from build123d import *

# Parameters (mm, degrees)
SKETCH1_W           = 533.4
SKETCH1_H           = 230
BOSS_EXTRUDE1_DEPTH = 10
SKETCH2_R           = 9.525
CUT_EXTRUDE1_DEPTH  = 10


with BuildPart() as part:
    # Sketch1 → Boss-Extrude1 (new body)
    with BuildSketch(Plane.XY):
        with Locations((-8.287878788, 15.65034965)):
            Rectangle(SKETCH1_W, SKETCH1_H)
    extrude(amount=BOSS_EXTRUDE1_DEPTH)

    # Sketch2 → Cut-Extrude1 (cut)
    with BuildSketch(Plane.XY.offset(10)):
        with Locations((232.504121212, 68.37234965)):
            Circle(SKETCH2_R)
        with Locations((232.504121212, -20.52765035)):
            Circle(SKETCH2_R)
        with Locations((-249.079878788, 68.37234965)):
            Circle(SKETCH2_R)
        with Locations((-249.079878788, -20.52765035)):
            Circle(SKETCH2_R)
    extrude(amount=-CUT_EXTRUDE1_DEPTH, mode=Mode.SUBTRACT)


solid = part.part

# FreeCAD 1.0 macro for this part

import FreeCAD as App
import Part
import Sketcher

V = App.Vector

doc = App.newDocument("Part")
body = doc.addObject("PartDesign::Body", "Body")

sketch1 = body.newObject("Sketcher::SketchObject", "Sketch")
sketch1.AttachmentSupport = (doc.getObject("XY_Plane"), [""])
sketch1.MapMode = "FlatFace"
sketch1.addGeometry([
    Part.LineSegment(V(-274.987879, 130.65035, 0), V(-274.987879, -99.34965, 0)),
    Part.LineSegment(V(-274.987879, -99.34965, 0), V(258.412121, -99.34965, 0)),
    Part.LineSegment(V(258.412121, -99.34965, 0), V(258.412121, 130.65035, 0)),
    Part.LineSegment(V(258.412121, 130.65035, 0), V(-274.987879, 130.65035, 0)),
], False)
sketch1.addConstraint([
    Sketcher.Constraint("Coincident", 0, 2, 1, 1),
    Sketcher.Constraint("Coincident", 1, 2, 2, 1),
    Sketcher.Constraint("Coincident", 2, 2, 3, 1),
    Sketcher.Constraint("Coincident", 3, 2, 0, 1),
    Sketcher.Constraint("Vertical", 0),
    Sketcher.Constraint("Horizontal", 1),
    Sketcher.Constraint("Vertical", 2),
    Sketcher.Constraint("Horizontal", 3),
    Sketcher.Constraint("DistanceY", 0, 2, 0, 1, 230.0),
    Sketcher.Constraint("DistanceX", 1, 1, 1, 2, 533.4),
    Sketcher.Constraint("DistanceX", 0, 2, -1, 1, 274.987879),
    Sketcher.Constraint("DistanceY", 0, 2, -1, 1, 99.34965),
])
pad1 = body.newObject("PartDesign::Pad", "Pad")
pad1.Profile = sketch1
pad1.Length = 10

sketch2 = body.newObject("Sketcher::SketchObject", "Sketch001")
sketch2.AttachmentSupport = (doc.getObject("XY_Plane"), [""])
sketch2.MapMode = "FlatFace"
sketch2.AttachmentOffset = App.Placement(V(0, 0, 10), App.Rotation())
sketch2.addGeometry([
    Part.Circle(V(232.504121, 68.37235, 0), V(0, 0, 1), 9.525),
    Part.Circle(V(232.504121, -20.52765, 0), V(0, 0, 1), 9.525),
    Part.Circle(V(-249.079879, 68.37235, 0), V(0, 0, 1), 9.525),
    Part.Circle(V(-249.079879, -20.52765, 0), V(0, 0, 1), 9.525),
], False)
sketch2.addConstraint([
    Sketcher.Constraint("Equal", 0, 1),
    Sketcher.Constraint("Equal", 1, 2),
    Sketcher.Constraint("Equal", 2, 3),
    Sketcher.Constraint("Horizontal", 0, 3, 2, 3),
    Sketcher.Constraint("Horizontal", 1, 3, 3, 3),
    Sketcher.Constraint("Vertical", 0, 3, 1, 3),
    Sketcher.Constraint("Vertical", 2, 3, 3, 3),
    Sketcher.Constraint("Diameter", 0, 19.05),
    Sketcher.Constraint("DistanceY", 1, 3, 0, 3, 88.9),
    Sketcher.Constraint("DistanceX", 2, 3, 0, 3, 481.584),
    Sketcher.Constraint("DistanceX", -1, 1, 0, 3, 232.504121),
    Sketcher.Constraint("DistanceY", -1, 1, 0, 3, 68.37235),
])
pocket1 = body.newObject("PartDesign::Pocket", "Pocket")
pocket1.Profile = sketch2
pocket1.Length = 10

doc.recompute()
